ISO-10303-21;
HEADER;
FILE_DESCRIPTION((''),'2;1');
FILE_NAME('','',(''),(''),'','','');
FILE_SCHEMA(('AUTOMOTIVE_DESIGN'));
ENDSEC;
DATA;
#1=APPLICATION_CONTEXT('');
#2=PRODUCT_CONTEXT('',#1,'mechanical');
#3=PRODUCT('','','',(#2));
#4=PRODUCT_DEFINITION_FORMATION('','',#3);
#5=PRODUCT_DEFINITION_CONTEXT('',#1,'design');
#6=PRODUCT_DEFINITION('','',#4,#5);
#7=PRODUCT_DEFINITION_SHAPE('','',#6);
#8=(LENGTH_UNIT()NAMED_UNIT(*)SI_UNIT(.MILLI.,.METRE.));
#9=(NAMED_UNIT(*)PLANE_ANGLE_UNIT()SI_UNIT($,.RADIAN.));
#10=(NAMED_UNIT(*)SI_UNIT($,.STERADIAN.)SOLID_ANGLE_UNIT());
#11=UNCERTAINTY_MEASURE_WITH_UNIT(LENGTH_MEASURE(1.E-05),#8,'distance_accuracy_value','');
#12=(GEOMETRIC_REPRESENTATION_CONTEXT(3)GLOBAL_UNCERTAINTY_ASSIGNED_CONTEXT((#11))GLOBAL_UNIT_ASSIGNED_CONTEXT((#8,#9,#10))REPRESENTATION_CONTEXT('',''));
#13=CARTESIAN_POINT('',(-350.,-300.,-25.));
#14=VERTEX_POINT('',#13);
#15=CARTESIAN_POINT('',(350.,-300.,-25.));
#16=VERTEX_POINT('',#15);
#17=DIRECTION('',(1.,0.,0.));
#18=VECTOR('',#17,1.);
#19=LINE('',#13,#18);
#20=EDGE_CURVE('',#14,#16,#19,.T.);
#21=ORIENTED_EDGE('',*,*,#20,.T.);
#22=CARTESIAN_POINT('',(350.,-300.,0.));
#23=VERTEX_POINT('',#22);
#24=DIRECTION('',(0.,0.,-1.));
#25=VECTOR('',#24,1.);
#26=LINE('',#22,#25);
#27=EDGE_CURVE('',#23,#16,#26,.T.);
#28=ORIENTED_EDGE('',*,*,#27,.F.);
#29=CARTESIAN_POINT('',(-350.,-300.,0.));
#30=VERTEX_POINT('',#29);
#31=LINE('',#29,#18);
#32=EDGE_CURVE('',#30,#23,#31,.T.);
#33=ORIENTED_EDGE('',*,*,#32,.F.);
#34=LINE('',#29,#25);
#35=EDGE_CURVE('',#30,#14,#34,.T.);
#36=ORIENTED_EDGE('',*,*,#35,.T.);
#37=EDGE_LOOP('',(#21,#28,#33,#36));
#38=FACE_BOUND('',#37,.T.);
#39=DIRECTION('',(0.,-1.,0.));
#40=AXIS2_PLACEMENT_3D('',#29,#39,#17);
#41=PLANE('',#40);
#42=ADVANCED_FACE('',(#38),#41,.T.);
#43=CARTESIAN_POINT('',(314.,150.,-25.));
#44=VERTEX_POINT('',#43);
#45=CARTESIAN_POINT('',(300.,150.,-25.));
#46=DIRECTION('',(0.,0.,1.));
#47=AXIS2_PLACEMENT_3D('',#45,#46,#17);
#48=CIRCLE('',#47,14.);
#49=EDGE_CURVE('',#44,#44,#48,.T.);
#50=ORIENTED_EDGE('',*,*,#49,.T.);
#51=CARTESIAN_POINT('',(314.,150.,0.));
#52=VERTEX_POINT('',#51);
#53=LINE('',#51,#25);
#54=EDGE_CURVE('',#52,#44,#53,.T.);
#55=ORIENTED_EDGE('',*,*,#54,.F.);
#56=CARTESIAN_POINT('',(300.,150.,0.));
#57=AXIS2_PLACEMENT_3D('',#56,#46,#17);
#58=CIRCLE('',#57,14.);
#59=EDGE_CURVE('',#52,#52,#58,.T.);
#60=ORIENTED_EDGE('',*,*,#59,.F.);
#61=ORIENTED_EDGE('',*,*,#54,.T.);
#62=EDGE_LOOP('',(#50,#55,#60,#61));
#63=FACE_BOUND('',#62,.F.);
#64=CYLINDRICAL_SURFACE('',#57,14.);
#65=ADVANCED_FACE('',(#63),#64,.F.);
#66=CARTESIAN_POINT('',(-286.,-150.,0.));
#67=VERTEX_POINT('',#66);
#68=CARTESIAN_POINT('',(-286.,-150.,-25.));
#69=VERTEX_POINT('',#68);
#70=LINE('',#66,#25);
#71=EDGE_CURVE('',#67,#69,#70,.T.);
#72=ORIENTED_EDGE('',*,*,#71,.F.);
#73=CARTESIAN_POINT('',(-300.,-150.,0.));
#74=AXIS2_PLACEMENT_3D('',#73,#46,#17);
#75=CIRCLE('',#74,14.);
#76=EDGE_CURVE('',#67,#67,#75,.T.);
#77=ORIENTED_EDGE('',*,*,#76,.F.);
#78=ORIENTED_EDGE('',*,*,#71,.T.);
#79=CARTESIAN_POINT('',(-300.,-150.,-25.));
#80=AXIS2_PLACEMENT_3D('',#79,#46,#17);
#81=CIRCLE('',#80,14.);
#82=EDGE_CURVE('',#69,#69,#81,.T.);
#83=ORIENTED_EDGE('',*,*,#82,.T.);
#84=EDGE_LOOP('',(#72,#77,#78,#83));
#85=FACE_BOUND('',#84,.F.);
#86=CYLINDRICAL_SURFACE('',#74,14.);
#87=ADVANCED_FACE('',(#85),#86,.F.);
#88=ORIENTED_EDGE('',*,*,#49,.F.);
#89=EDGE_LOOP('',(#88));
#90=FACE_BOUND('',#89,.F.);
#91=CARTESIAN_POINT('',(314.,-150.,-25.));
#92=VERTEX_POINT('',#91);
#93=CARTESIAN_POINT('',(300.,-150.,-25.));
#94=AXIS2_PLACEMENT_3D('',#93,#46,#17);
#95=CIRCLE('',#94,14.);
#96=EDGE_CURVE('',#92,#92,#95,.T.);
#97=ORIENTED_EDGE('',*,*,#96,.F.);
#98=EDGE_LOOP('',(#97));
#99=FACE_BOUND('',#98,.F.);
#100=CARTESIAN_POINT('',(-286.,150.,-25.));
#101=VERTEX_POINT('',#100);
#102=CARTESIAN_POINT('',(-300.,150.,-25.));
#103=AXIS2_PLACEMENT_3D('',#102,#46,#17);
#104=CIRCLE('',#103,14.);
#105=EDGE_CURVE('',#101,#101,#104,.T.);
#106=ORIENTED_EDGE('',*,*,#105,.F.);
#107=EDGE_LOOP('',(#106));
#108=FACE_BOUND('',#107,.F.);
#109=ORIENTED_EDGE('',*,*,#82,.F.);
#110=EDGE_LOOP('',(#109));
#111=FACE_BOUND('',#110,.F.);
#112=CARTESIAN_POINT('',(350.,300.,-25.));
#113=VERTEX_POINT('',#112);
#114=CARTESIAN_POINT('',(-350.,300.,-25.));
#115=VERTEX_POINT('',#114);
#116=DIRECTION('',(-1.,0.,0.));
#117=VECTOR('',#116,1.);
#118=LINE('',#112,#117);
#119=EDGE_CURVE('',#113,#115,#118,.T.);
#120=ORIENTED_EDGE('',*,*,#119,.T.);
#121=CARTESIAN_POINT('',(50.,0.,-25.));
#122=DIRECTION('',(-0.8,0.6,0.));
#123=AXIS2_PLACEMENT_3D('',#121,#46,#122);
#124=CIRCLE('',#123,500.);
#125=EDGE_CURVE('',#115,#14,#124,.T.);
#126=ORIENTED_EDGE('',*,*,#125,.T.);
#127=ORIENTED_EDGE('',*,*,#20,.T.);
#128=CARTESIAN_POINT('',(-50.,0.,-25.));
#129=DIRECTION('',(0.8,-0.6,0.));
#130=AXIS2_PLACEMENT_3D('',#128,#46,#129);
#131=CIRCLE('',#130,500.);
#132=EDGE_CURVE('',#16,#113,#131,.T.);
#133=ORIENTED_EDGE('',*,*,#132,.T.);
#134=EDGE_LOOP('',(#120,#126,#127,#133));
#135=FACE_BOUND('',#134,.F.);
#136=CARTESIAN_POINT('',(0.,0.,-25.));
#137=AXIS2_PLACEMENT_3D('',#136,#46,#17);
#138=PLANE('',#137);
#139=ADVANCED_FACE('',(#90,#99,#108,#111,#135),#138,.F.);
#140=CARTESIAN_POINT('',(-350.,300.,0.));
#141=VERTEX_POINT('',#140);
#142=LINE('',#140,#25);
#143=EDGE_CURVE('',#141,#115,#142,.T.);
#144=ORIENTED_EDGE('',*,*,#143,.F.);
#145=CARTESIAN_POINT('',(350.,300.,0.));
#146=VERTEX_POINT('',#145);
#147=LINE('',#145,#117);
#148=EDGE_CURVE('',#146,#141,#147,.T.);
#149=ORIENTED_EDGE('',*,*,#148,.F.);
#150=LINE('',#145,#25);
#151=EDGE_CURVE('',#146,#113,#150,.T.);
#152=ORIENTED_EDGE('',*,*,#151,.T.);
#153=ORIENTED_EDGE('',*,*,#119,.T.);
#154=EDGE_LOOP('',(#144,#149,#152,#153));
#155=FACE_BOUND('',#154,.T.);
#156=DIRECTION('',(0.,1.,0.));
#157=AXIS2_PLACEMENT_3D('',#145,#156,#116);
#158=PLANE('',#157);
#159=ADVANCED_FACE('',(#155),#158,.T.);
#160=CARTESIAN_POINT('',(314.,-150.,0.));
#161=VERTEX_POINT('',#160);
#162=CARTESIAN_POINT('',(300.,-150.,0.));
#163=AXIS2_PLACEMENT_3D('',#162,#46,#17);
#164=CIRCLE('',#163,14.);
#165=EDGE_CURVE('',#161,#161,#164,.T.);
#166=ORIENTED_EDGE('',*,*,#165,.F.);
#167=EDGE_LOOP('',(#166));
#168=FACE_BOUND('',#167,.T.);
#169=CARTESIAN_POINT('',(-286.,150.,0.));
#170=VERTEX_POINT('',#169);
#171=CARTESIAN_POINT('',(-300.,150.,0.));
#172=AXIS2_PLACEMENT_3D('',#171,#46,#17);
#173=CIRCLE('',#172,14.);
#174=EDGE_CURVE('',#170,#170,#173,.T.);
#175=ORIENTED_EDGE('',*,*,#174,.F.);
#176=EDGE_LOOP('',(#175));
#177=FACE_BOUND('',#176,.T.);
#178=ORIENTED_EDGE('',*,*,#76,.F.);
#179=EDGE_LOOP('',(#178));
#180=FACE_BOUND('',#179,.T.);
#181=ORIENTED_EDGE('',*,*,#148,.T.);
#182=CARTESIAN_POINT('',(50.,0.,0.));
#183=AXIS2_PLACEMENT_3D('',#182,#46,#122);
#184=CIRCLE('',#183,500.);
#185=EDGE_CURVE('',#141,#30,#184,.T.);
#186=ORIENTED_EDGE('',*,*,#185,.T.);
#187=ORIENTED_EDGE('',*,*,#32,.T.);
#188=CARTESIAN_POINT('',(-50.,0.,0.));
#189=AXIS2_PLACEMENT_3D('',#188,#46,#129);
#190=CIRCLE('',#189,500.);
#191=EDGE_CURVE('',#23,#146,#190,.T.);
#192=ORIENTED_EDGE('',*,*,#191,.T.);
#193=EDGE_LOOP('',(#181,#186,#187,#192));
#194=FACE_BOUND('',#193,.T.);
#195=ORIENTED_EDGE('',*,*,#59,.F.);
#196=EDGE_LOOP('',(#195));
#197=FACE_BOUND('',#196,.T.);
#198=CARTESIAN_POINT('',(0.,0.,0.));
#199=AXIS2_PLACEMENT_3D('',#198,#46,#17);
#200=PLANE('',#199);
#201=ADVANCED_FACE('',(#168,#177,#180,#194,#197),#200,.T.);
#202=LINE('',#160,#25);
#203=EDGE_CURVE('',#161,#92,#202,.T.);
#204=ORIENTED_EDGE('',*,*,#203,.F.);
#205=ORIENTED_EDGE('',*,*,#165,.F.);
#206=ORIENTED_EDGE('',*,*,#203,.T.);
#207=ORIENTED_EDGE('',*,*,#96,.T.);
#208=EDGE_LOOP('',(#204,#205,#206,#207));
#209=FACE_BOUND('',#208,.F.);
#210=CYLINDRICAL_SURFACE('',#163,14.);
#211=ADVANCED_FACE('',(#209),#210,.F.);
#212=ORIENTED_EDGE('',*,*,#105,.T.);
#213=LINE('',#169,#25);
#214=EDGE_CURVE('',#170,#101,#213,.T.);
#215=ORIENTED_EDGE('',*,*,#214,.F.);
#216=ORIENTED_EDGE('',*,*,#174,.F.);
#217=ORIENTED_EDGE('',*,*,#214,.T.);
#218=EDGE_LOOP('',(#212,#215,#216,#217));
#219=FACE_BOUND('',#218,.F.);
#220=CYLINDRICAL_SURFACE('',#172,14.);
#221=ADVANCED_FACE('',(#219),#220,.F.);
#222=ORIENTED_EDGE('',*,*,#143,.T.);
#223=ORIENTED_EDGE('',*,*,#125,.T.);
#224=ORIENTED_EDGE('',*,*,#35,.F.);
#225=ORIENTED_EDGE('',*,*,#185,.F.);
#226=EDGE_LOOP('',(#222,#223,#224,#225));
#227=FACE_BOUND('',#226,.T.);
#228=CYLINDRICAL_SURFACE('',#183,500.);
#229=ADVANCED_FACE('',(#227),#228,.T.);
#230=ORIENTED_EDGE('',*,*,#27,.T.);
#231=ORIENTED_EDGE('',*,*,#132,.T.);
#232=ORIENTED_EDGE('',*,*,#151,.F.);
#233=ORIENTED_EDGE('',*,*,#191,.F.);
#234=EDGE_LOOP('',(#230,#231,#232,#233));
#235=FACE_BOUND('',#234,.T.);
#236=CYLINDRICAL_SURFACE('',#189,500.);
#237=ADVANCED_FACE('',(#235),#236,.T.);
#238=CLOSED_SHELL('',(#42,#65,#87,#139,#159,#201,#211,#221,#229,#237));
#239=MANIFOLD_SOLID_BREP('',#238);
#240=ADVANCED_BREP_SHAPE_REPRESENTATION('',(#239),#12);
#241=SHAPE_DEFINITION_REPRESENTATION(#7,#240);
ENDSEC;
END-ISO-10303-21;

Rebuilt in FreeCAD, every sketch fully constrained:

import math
import FreeCAD as App
import Part
import Sketcher
Q = App.Units.Quantity

doc = App.newDocument("Part")
body = doc.addObject("PartDesign::Body", "Body")

# Sketch on XY plane
sketch1 = body.newObject("Sketcher::SketchObject", "Sketch")
sketch1.AttachmentSupport = (doc.getObject("XY_Plane"), [""])
sketch1.MapMode = "FlatFace"
sketch1.addGeometry([
    Part.LineSegment(App.Vector(350, 300, 0), App.Vector(-350, 300, 0)),  # 0
    Part.ArcOfCircle(Part.Circle(App.Vector(50, 0, 0), App.Vector(0, 0, 1), 500), math.radians(143.130102), math.radians(216.869898)),  # 1
    Part.LineSegment(App.Vector(-350, -300, 0), App.Vector(350, -300, 0)),  # 2
    Part.ArcOfCircle(Part.Circle(App.Vector(-50, 0, 0), App.Vector(0, 0, 1), 500), math.radians(-36.869898), math.radians(36.869898)),  # 3
    Part.Circle(App.Vector(-300, -150, 0), App.Vector(0, 0, 1), 14),  # 4
    Part.Circle(App.Vector(300, -150, 0), App.Vector(0, 0, 1), 14),  # 5
    Part.Circle(App.Vector(-300, 150, 0), App.Vector(0, 0, 1), 14),  # 6
    Part.Circle(App.Vector(300, 150, 0), App.Vector(0, 0, 1), 14),  # 7
], False)
sketch1.addConstraint([
    Sketcher.Constraint("Coincident", 0, 2, 1, 1),
    Sketcher.Constraint("Coincident", 1, 2, 2, 1),
    Sketcher.Constraint("Coincident", 2, 2, 3, 1),
    Sketcher.Constraint("Coincident", 3, 2, 0, 1),
    Sketcher.Constraint("Horizontal", 0),
    Sketcher.Constraint("Horizontal", 2),
    Sketcher.Constraint("Equal", 1, 3),
    Sketcher.Constraint("Equal", 4, 5),
    Sketcher.Constraint("Equal", 5, 6),
    Sketcher.Constraint("Equal", 6, 7),
    Sketcher.Constraint("Symmetric", 1, 3, 3, 3, -1, 1),
    Sketcher.Constraint("Symmetric", 5, 3, 6, 3, -1, 1),
    Sketcher.Constraint("Symmetric", 4, 3, 7, 3, -1, 1),
    Sketcher.Constraint("Symmetric", 4, 3, 5, 3, -2),
    Sketcher.Constraint("PointOnObject", 1, 3, -1),
    Sketcher.Constraint("Equal", 0, 2),
    Sketcher.Constraint("Diameter", 4, Q("28 mm")),
    Sketcher.Constraint("Radius", 1, Q("500 mm")),
    Sketcher.Constraint("DistanceX", 0, 2, 0, 1, Q("700 mm")),
    Sketcher.Constraint("DistanceX", -1, 1, 1, 3, Q("50 mm")),
    Sketcher.Constraint("DistanceX", 4, 3, -1, 1, Q("300 mm")),
    Sketcher.Constraint("DistanceY", 4, 3, -1, 1, Q("150 mm")),
])
pad1 = body.newObject("PartDesign::Pad", "Pad")
pad1.Profile = sketch1
pad1.Length = 25
pad1.Reversed = True

doc.recompute()
